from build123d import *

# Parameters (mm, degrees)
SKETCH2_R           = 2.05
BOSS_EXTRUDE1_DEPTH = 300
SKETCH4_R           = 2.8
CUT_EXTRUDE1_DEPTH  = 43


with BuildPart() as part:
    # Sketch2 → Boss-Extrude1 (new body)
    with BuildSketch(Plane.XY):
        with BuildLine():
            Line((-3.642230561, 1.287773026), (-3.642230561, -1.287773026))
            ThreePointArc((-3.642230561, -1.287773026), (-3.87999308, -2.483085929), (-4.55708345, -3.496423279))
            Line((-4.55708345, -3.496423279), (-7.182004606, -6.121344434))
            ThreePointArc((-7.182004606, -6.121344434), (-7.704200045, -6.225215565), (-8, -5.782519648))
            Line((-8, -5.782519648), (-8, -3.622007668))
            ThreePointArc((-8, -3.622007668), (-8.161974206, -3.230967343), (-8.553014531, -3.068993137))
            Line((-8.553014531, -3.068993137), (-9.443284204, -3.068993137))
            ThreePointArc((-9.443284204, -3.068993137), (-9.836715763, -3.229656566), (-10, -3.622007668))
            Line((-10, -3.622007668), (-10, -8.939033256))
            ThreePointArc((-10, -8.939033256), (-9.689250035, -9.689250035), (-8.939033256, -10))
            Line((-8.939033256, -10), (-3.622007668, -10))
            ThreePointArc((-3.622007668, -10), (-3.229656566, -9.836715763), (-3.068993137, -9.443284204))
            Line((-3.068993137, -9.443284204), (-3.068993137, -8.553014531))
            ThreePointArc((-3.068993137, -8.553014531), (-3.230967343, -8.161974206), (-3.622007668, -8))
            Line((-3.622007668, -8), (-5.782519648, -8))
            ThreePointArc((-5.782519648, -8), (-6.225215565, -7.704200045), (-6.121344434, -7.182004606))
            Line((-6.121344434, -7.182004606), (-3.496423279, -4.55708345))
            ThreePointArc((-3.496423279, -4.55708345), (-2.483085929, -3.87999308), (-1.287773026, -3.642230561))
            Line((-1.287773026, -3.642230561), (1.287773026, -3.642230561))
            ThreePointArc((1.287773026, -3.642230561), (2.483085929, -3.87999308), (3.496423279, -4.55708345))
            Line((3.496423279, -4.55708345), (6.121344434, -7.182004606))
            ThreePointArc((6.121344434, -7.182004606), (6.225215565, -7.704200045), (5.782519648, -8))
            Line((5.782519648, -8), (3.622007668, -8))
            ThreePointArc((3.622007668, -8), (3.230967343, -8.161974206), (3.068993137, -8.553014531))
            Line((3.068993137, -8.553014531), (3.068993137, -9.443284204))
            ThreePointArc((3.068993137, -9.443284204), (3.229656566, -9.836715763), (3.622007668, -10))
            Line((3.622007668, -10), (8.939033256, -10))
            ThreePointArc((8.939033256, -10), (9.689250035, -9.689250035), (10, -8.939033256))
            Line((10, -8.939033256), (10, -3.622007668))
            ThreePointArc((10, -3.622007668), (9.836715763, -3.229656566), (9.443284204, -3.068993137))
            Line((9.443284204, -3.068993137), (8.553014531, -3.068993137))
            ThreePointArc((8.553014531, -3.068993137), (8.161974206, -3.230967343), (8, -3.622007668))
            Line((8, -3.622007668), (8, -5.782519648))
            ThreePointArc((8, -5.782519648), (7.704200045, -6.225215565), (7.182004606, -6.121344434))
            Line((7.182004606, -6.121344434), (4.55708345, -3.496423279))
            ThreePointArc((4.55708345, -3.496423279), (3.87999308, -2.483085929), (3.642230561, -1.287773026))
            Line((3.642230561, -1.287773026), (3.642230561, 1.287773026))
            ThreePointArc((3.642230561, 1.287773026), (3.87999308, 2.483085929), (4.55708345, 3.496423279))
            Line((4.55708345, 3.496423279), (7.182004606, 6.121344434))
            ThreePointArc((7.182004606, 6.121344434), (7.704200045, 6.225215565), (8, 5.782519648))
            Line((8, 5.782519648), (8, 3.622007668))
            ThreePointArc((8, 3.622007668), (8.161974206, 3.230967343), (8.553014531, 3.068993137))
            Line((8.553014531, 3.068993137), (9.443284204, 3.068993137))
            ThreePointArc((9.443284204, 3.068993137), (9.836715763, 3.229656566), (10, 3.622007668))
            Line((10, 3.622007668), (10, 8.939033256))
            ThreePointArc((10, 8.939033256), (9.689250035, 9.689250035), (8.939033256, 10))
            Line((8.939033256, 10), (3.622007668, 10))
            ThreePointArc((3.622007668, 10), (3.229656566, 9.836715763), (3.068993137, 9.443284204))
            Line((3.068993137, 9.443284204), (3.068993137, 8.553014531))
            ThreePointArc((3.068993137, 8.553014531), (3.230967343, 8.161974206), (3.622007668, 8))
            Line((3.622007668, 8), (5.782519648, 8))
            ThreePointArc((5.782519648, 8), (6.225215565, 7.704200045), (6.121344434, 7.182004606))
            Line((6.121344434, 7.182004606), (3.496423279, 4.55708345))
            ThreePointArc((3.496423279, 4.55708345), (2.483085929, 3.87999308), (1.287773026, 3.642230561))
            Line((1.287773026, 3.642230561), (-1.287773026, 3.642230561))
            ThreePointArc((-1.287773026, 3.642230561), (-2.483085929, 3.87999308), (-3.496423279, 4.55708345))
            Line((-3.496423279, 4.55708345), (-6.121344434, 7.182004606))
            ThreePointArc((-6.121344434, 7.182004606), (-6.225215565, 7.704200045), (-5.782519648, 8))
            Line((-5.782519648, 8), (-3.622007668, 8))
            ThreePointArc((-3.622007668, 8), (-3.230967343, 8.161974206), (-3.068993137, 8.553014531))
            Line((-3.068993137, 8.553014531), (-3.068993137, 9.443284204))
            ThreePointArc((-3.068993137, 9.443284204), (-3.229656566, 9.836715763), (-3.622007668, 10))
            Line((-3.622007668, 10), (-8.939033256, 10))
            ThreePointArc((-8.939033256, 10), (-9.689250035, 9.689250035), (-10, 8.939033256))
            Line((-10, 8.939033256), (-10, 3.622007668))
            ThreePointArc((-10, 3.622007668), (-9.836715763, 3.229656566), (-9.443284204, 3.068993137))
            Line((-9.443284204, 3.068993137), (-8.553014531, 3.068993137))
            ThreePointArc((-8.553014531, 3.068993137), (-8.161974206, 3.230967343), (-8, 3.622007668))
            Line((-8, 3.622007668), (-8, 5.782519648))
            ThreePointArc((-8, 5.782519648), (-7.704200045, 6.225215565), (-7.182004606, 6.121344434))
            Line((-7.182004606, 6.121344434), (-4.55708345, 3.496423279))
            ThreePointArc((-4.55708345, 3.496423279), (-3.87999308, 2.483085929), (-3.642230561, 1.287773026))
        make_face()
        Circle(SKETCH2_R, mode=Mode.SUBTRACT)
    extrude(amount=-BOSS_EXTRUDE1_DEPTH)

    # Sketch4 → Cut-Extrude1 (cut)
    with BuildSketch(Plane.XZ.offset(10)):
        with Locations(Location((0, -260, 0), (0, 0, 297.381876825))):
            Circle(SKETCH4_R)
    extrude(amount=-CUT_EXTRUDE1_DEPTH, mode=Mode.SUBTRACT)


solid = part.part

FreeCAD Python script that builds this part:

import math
import FreeCAD as App
import Part
import Sketcher
from FreeCAD import Vector

doc = App.newDocument("Part")
body = doc.addObject("PartDesign::Body", "Body")

sketch1 = body.newObject("Sketcher::SketchObject", "Sketch")
sketch1.AttachmentSupport = (doc.getObject("XY_Plane"), [""])
sketch1.MapMode = "FlatFace"
sketch1.addGeometry([
    Part.LineSegment(Vector(-3.642231, 1.287773, 0), Vector(-3.642231, -1.287773, 0)),
    Part.ArcOfCircle(Part.Circle(Vector(-6.765734, -1.287773, 0), Vector(0, 0, 1), 3.123503), math.radians(-45), math.radians(0)),
    Part.LineSegment(Vector(-4.557083, -3.496423, 0), Vector(-7.182005, -6.121344, 0)),
    Part.ArcOfCircle(Part.Circle(Vector(-7.520829, -5.78252, 0), Vector(0, 0, 1), 0.479171), math.radians(180), math.radians(315)),
    Part.LineSegment(Vector(-8, -5.78252, 0), Vector(-8, -3.622008, 0)),
    Part.ArcOfCircle(Part.Circle(Vector(-8.553015, -3.622008, 0), Vector(0, 0, 1), 0.553015), math.radians(0), math.radians(90)),
    Part.LineSegment(Vector(-8.553015, -3.068993, 0), Vector(-9.443284, -3.068993, 0)),
    Part.ArcOfCircle(Part.Circle(Vector(-9.446973, -3.622008, 0), Vector(0, 0, 1), 0.553027), math.radians(89.617806), math.radians(180)),
    Part.LineSegment(Vector(-10, -3.622008, 0), Vector(-10, -8.939033, 0)),
    Part.ArcOfCircle(Part.Circle(Vector(-8.939033, -8.939033, 0), Vector(0, 0, 1), 1.060967), math.radians(-180), math.radians(-90)),
    Part.LineSegment(Vector(-8.939033, -10, 0), Vector(-3.622008, -10, 0)),
    Part.ArcOfCircle(Part.Circle(Vector(-3.622008, -9.446973, 0), Vector(0, 0, 1), 0.553027), math.radians(-90), math.radians(0.382194)),
    Part.LineSegment(Vector(-3.068993, -9.443284, 0), Vector(-3.068993, -8.553015, 0)),
    Part.ArcOfCircle(Part.Circle(Vector(-3.622008, -8.553015, 0), Vector(0, 0, 1), 0.553015), math.radians(0), math.radians(90)),
    Part.LineSegment(Vector(-3.622008, -8, 0), Vector(-5.78252, -8, 0)),
    Part.ArcOfCircle(Part.Circle(Vector(-5.78252, -7.520829, 0), Vector(0, 0, 1), 0.479171), math.radians(135), math.radians(270)),
    Part.LineSegment(Vector(-6.121344, -7.182005, 0), Vector(-3.496423, -4.557083, 0)),
    Part.ArcOfCircle(Part.Circle(Vector(-1.287773, -6.765734, 0), Vector(0, 0, 1), 3.123503), math.radians(90), math.radians(135)),
    Part.LineSegment(Vector(-1.287773, -3.642231, 0), Vector(1.287773, -3.642231, 0)),
    Part.ArcOfCircle(Part.Circle(Vector(1.287773, -6.765734, 0), Vector(0, 0, 1), 3.123503), math.radians(45), math.radians(90)),
    Part.LineSegment(Vector(3.496423, -4.557083, 0), Vector(6.121344, -7.182005, 0)),
    Part.ArcOfCircle(Part.Circle(Vector(5.78252, -7.520829, 0), Vector(0, 0, 1), 0.479171), math.radians(-90), math.radians(45)),
    Part.LineSegment(Vector(5.78252, -8, 0), Vector(3.622008, -8, 0)),
    Part.ArcOfCircle(Part.Circle(Vector(3.622008, -8.553015, 0), Vector(0, 0, 1), 0.553015), math.radians(90), math.radians(180)),
    Part.LineSegment(Vector(3.068993, -8.553015, 0), Vector(3.068993, -9.443284, 0)),
    Part.ArcOfCircle(Part.Circle(Vector(3.622008, -9.446973, 0), Vector(0, 0, 1), 0.553027), math.radians(179.617806), math.radians(270)),
    Part.LineSegment(Vector(3.622008, -10, 0), Vector(8.939033, -10, 0)),
    Part.ArcOfCircle(Part.Circle(Vector(8.939033, -8.939033, 0), Vector(0, 0, 1), 1.060967), math.radians(-90), math.radians(0)),
    Part.LineSegment(Vector(10, -8.939033, 0), Vector(10, -3.622008, 0)),
    Part.ArcOfCircle(Part.Circle(Vector(9.446973, -3.622008, 0), Vector(0, 0, 1), 0.553027), math.radians(0), math.radians(90.382194)),
    Part.LineSegment(Vector(9.443284, -3.068993, 0), Vector(8.553015, -3.068993, 0)),
    Part.ArcOfCircle(Part.Circle(Vector(8.553015, -3.622008, 0), Vector(0, 0, 1), 0.553015), math.radians(90), math.radians(180)),
    Part.LineSegment(Vector(8, -3.622008, 0), Vector(8, -5.78252, 0)),
    Part.ArcOfCircle(Part.Circle(Vector(7.520829, -5.78252, 0), Vector(0, 0, 1), 0.479171), math.radians(-135), math.radians(0)),
    Part.LineSegment(Vector(7.182005, -6.121344, 0), Vector(4.557083, -3.496423, 0)),
    Part.ArcOfCircle(Part.Circle(Vector(6.765734, -1.287773, 0), Vector(0, 0, 1), 3.123503), math.radians(180), math.radians(225)),
    Part.LineSegment(Vector(3.642231, -1.287773, 0), Vector(3.642231, 1.287773, 0)),
    Part.ArcOfCircle(Part.Circle(Vector(6.765734, 1.287773, 0), Vector(0, 0, 1), 3.123503), math.radians(135), math.radians(180)),
    Part.LineSegment(Vector(4.557083, 3.496423, 0), Vector(7.182005, 6.121344, 0)),
    Part.ArcOfCircle(Part.Circle(Vector(7.520829, 5.78252, 0), Vector(0, 0, 1), 0.479171), math.radians(0), math.radians(135)),
    Part.LineSegment(Vector(8, 5.78252, 0), Vector(8, 3.622008, 0)),
    Part.ArcOfCircle(Part.Circle(Vector(8.553015, 3.622008, 0), Vector(0, 0, 1), 0.553015), math.radians(180), math.radians(270)),
    Part.LineSegment(Vector(8.553015, 3.068993, 0), Vector(9.443284, 3.068993, 0)),
    Part.ArcOfCircle(Part.Circle(Vector(9.446973, 3.622008, 0), Vector(0, 0, 1), 0.553027), math.radians(-90.382194), math.radians(0)),
    Part.LineSegment(Vector(10, 3.622008, 0), Vector(10, 8.939033, 0)),
    Part.ArcOfCircle(Part.Circle(Vector(8.939033, 8.939033, 0), Vector(0, 0, 1), 1.060967), math.radians(0), math.radians(90)),
    Part.LineSegment(Vector(8.939033, 10, 0), Vector(3.622008, 10, 0)),
    Part.ArcOfCircle(Part.Circle(Vector(3.622008, 9.446973, 0), Vector(0, 0, 1), 0.553027), math.radians(90), math.radians(180.382194)),
    Part.LineSegment(Vector(3.068993, 9.443284, 0), Vector(3.068993, 8.553015, 0)),
    Part.ArcOfCircle(Part.Circle(Vector(3.622008, 8.553015, 0), Vector(0, 0, 1), 0.553015), math.radians(180), math.radians(270)),
    Part.LineSegment(Vector(3.622008, 8, 0), Vector(5.78252, 8, 0)),
    Part.ArcOfCircle(Part.Circle(Vector(5.78252, 7.520829, 0), Vector(0, 0, 1), 0.479171), math.radians(-45), math.radians(90)),
    Part.LineSegment(Vector(6.121344, 7.182005, 0), Vector(3.496423, 4.557083, 0)),
    Part.ArcOfCircle(Part.Circle(Vector(1.287773, 6.765734, 0), Vector(0, 0, 1), 3.123503), math.radians(-90), math.radians(-45)),
    Part.LineSegment(Vector(1.287773, 3.642231, 0), Vector(-1.287773, 3.642231, 0)),
    Part.ArcOfCircle(Part.Circle(Vector(-1.287773, 6.765734, 0), Vector(0, 0, 1), 3.123503), math.radians(-135), math.radians(-90)),
    Part.LineSegment(Vector(-3.496423, 4.557083, 0), Vector(-6.121344, 7.182005, 0)),
    Part.ArcOfCircle(Part.Circle(Vector(-5.78252, 7.520829, 0), Vector(0, 0, 1), 0.479171), math.radians(90), math.radians(225)),
    Part.LineSegment(Vector(-5.78252, 8, 0), Vector(-3.622008, 8, 0)),
    Part.ArcOfCircle(Part.Circle(Vector(-3.622008, 8.553015, 0), Vector(0, 0, 1), 0.553015), math.radians(-90), math.radians(0)),
    Part.LineSegment(Vector(-3.068993, 8.553015, 0), Vector(-3.068993, 9.443284, 0)),
    Part.ArcOfCircle(Part.Circle(Vector(-3.622008, 9.446973, 0), Vector(0, 0, 1), 0.553027), math.radians(-0.382194), math.radians(90)),
    Part.LineSegment(Vector(-3.622008, 10, 0), Vector(-8.939033, 10, 0)),
    Part.ArcOfCircle(Part.Circle(Vector(-8.939033, 8.939033, 0), Vector(0, 0, 1), 1.060967), math.radians(90), math.radians(180)),
    Part.LineSegment(Vector(-10, 8.939033, 0), Vector(-10, 3.622008, 0)),
    Part.ArcOfCircle(Part.Circle(Vector(-9.446973, 3.622008, 0), Vector(0, 0, 1), 0.553027), math.radians(180), math.radians(270.382194)),
    Part.LineSegment(Vector(-9.443284, 3.068993, 0), Vector(-8.553015, 3.068993, 0)),
    Part.ArcOfCircle(Part.Circle(Vector(-8.553015, 3.622008, 0), Vector(0, 0, 1), 0.553015), math.radians(-90), math.radians(0)),
    Part.LineSegment(Vector(-8, 3.622008, 0), Vector(-8, 5.78252, 0)),
    Part.ArcOfCircle(Part.Circle(Vector(-7.520829, 5.78252, 0), Vector(0, 0, 1), 0.479171), math.radians(45), math.radians(180)),
    Part.LineSegment(Vector(-7.182005, 6.121344, 0), Vector(-4.557083, 3.496423, 0)),
    Part.ArcOfCircle(Part.Circle(Vector(-6.765734, 1.287773, 0), Vector(0, 0, 1), 3.123503), math.radians(0), math.radians(45)),
    Part.Circle(Vector(0, 0, 0), Vector(0, 0, 1), 2.05),
], False)
sketch1.addConstraint([
    Sketcher.Constraint("Tangent", 0, 2, 1, 2),
    Sketcher.Constraint("Tangent", 1, 1, 2, 1),
    Sketcher.Constraint("Tangent", 2, 2, 3, 2),
    Sketcher.Constraint("Tangent", 3, 1, 4, 1),
    Sketcher.Constraint("Tangent", 4, 2, 5, 1),
    Sketcher.Constraint("Tangent", 5, 2, 6, 1),
    Sketcher.Constraint("Coincident", 6, 2, 7, 1),
    Sketcher.Constraint("Tangent", 7, 2, 8, 1),
    Sketcher.Constraint("Tangent", 8, 2, 9, 1),
    Sketcher.Constraint("Tangent", 9, 2, 10, 1),
    Sketcher.Constraint("Tangent", 10, 2, 11, 1),
    Sketcher.Constraint("Coincident", 11, 2, 12, 1),
    Sketcher.Constraint("Tangent", 12, 2, 13, 1),
    Sketcher.Constraint("Tangent", 13, 2, 14, 1),
    Sketcher.Constraint("Tangent", 14, 2, 15, 2),
    Sketcher.Constraint("Tangent", 15, 1, 16, 1),
    Sketcher.Constraint("Tangent", 16, 2, 17, 2),
    Sketcher.Constraint("Tangent", 17, 1, 18, 1),
    Sketcher.Constraint("Tangent", 18, 2, 19, 2),
    Sketcher.Constraint("Tangent", 19, 1, 20, 1),
    Sketcher.Constraint("Tangent", 20, 2, 21, 2),
    Sketcher.Constraint("Tangent", 21, 1, 22, 1),
    Sketcher.Constraint("Tangent", 22, 2, 23, 1),
    Sketcher.Constraint("Tangent", 23, 2, 24, 1),
    Sketcher.Constraint("Coincident", 24, 2, 25, 1),
    Sketcher.Constraint("Tangent", 25, 2, 26, 1),
    Sketcher.Constraint("Tangent", 26, 2, 27, 1),
    Sketcher.Constraint("Tangent", 27, 2, 28, 1),
    Sketcher.Constraint("Tangent", 28, 2, 29, 1),
    Sketcher.Constraint("Coincident", 29, 2, 30, 1),
    Sketcher.Constraint("Tangent", 30, 2, 31, 1),
    Sketcher.Constraint("Tangent", 31, 2, 32, 1),
    Sketcher.Constraint("Tangent", 32, 2, 33, 2),
    Sketcher.Constraint("Tangent", 33, 1, 34, 1),
    Sketcher.Constraint("Tangent", 34, 2, 35, 2),
    Sketcher.Constraint("Tangent", 35, 1, 36, 1),
    Sketcher.Constraint("Tangent", 36, 2, 37, 2),
    Sketcher.Constraint("Tangent", 37, 1, 38, 1),
    Sketcher.Constraint("Tangent", 38, 2, 39, 2),
    Sketcher.Constraint("Tangent", 39, 1, 40, 1),
    Sketcher.Constraint("Tangent", 40, 2, 41, 1),
    Sketcher.Constraint("Tangent", 41, 2, 42, 1),
    Sketcher.Constraint("Coincident", 42, 2, 43, 1),
    Sketcher.Constraint("Tangent", 43, 2, 44, 1),
    Sketcher.Constraint("Tangent", 44, 2, 45, 1),
    Sketcher.Constraint("Tangent", 45, 2, 46, 1),
    Sketcher.Constraint("Tangent", 46, 2, 47, 1),
    Sketcher.Constraint("Coincident", 47, 2, 48, 1),
    Sketcher.Constraint("Tangent", 48, 2, 49, 1),
    Sketcher.Constraint("Tangent", 49, 2, 50, 1),
    Sketcher.Constraint("Tangent", 50, 2, 51, 2),
    Sketcher.Constraint("Tangent", 51, 1, 52, 1),
    Sketcher.Constraint("Tangent", 52, 2, 53, 2),
    Sketcher.Constraint("Tangent", 53, 1, 54, 1),
    Sketcher.Constraint("Tangent", 54, 2, 55, 2),
    Sketcher.Constraint("Tangent", 55, 1, 56, 1),
    Sketcher.Constraint("Tangent", 56, 2, 57, 2),
    Sketcher.Constraint("Tangent", 57, 1, 58, 1),
    Sketcher.Constraint("Tangent", 58, 2, 59, 1),
    Sketcher.Constraint("Tangent", 59, 2, 60, 1),
    Sketcher.Constraint("Coincident", 60, 2, 61, 1),
    Sketcher.Constraint("Tangent", 61, 2, 62, 1),
    Sketcher.Constraint("Tangent", 62, 2, 63, 1),
    Sketcher.Constraint("Tangent", 63, 2, 64, 1),
    Sketcher.Constraint("Tangent", 64, 2, 65, 1),
    Sketcher.Constraint("Coincident", 65, 2, 66, 1),
    Sketcher.Constraint("Tangent", 66, 2, 67, 1),
    Sketcher.Constraint("Tangent", 67, 2, 68, 1),
    Sketcher.Constraint("Tangent", 68, 2, 69, 2),
    Sketcher.Constraint("Tangent", 69, 1, 70, 1),
    Sketcher.Constraint("Tangent", 70, 2, 71, 2),
    Sketcher.Constraint("Tangent", 71, 1, 0, 1),
    Sketcher.Constraint("Vertical", 0),
    Sketcher.Constraint("Vertical", 4),
    Sketcher.Constraint("Horizontal", 6),
    Sketcher.Constraint("Vertical", 8),
    Sketcher.Constraint("Horizontal", 10),
    Sketcher.Constraint("Vertical", 12),
    Sketcher.Constraint("Horizontal", 14),
    Sketcher.Constraint("Horizontal", 18),
    Sketcher.Constraint("Horizontal", 22),
    Sketcher.Constraint("Vertical", 24),
    Sketcher.Constraint("Horizontal", 26),
    Sketcher.Constraint("Vertical", 28),
    Sketcher.Constraint("Horizontal", 30),
    Sketcher.Constraint("Vertical", 32),
    Sketcher.Constraint("Vertical", 36),
    Sketcher.Constraint("Vertical", 40),
    Sketcher.Constraint("Horizontal", 42),
    Sketcher.Constraint("Vertical", 44),
    Sketcher.Constraint("Horizontal", 46),
    Sketcher.Constraint("Vertical", 48),
    Sketcher.Constraint("Horizontal", 50),
    Sketcher.Constraint("Horizontal", 54),
    Sketcher.Constraint("Horizontal", 58),
    Sketcher.Constraint("Vertical", 60),
    Sketcher.Constraint("Horizontal", 62),
    Sketcher.Constraint("Vertical", 64),
    Sketcher.Constraint("Horizontal", 66),
    Sketcher.Constraint("Vertical", 68),
    Sketcher.Constraint("Coincident", 72, 3, -1, 1),
    Sketcher.Constraint("Equal", 7, 11),
    Sketcher.Constraint("Equal", 5, 13),
    Sketcher.Constraint("Equal", 3, 15),
    Sketcher.Constraint("Equal", 1, 17),
    Sketcher.Constraint("Equal", 17, 19),
    Sketcher.Constraint("Equal", 15, 21),
    Sketcher.Constraint("Equal", 13, 23),
    Sketcher.Constraint("Equal", 11, 25),
    Sketcher.Constraint("Equal", 9, 27),
    Sketcher.Constraint("Equal", 25, 29),
    Sketcher.Constraint("Equal", 23, 31),
    Sketcher.Constraint("Equal", 21, 33),
    Sketcher.Constraint("Equal", 19, 35),
    Sketcher.Constraint("Equal", 35, 37),
    Sketcher.Constraint("Equal", 33, 39),
    Sketcher.Constraint("Equal", 31, 41),
    Sketcher.Constraint("Equal", 29, 43),
    Sketcher.Constraint("Equal", 27, 45),
    Sketcher.Constraint("Equal", 43, 47),
    Sketcher.Constraint("Equal", 41, 49),
    Sketcher.Constraint("Equal", 39, 51),
    Sketcher.Constraint("Equal", 37, 53),
    Sketcher.Constraint("Equal", 53, 55),
    Sketcher.Constraint("Equal", 51, 57),
    Sketcher.Constraint("Equal", 49, 59),
    Sketcher.Constraint("Equal", 47, 61),
    Sketcher.Constraint("Equal", 45, 63),
    Sketcher.Constraint("Equal", 61, 65),
    Sketcher.Constraint("Equal", 59, 67),
    Sketcher.Constraint("Equal", 57, 69),
    Sketcher.Constraint("Equal", 55, 71),
    Sketcher.Constraint("Symmetric", 1, 3, 37, 3, -1, 1),
    Sketcher.Constraint("Symmetric", 3, 3, 39, 3, -1, 1),
    Sketcher.Constraint("Symmetric", 7, 3, 43, 3, -1, 1),
    Sketcher.Constraint("Symmetric", 11, 3, 47, 3, -1, 1),
    Sketcher.Constraint("Symmetric", 13, 3, 49, 3, -1, 1),
    Sketcher.Constraint("Symmetric", 17, 3, 53, 3, -1, 1),
    Sketcher.Constraint("Symmetric", 21, 3, 57, 3, -1, 1),
    Sketcher.Constraint("Symmetric", 25, 3, 61, 3, -1, 1),
    Sketcher.Constraint("Symmetric", 29, 3, 65, 3, -1, 1),
    Sketcher.Constraint("Symmetric", 31, 3, 67, 3, -1, 1),
    Sketcher.Constraint("Symmetric", 33, 1, 69, 1, -1, 1),
    Sketcher.Constraint("Symmetric", 15, 3, 21, 3, -2),
    Sketcher.Constraint("Symmetric", 11, 3, 25, 3, -2),
    Sketcher.Constraint("Symmetric", 7, 3, 29, 3, -2),
    Sketcher.Constraint("Symmetric", 5, 3, 31, 3, -2),
    Sketcher.Constraint("Symmetric", 2, 2, 33, 1, -2),
    Sketcher.Constraint("Symmetric", 52, 2, 55, 1, -2),
    Sketcher.Constraint("Parallel", 2, 16),
    Sketcher.Constraint("Perpendicular", 16, 20),
    Sketcher.Constraint("Parallel", 20, 34),
    Sketcher.Constraint("Horizontal", 5, 3, 7, 3),
    Sketcher.Constraint("Horizontal", 41, 3, 43, 3),
    Sketcher.Constraint("Horizontal", 11, 2, 24, 2),
    Sketcher.Constraint("Horizontal", 47, 2, 60, 2),
    Sketcher.Constraint("Equal", 54, 0),
    Sketcher.Constraint("Equal", 58, 4),
    Sketcher.Constraint("Equal", 62, 8),
    Sketcher.Constraint("Equal", 66, 12),
    Sketcher.Constraint("Equal", 2, 16),
    Sketcher.Constraint("Diameter", 72, 4.1),
    Sketcher.Constraint("DistanceX", 3, 1, -1, 1, 8.0),
    Sketcher.Constraint("DistanceX", 7, 2, -1, 1, 10.0),
    Sketcher.Constraint("DistanceY", 13, 2, -1, 1, 8.0),
    Sketcher.Constraint("Radius", 3, 0.479171),
    Sketcher.Constraint("Radius", 1, 3.123503),
    Sketcher.Constraint("Radius", 5, 0.553015),
    Sketcher.Constraint("Radius", 9, 1.060967),
    Sketcher.Constraint("Distance", 2, 3.712199),
    Sketcher.Constraint("DistanceX", 6, 2, 6, 1, 0.89027),
    Sketcher.Constraint("DistanceX", 14, 2, 14, 1, 2.160512),
    Sketcher.Constraint("DistanceX", 10, 1, 10, 2, 5.317026),
])
pad1 = body.newObject("PartDesign::Pad", "Pad")
pad1.Profile = sketch1
pad1.Length = 300
pad1.Reversed = True

sketch2 = body.newObject("Sketcher::SketchObject", "Sketch001")
sketch2.AttachmentSupport = (doc.getObject("XZ_Plane"), [""])
sketch2.MapMode = "FlatFace"
sketch2.AttachmentOffset = App.Placement(Vector(0, 0, 10), App.Rotation())
sketch2.addGeometry(Part.Circle(Vector(0, -260, 0), Vector(0, 0, 1), 2.8), False)
sketch2.addConstraint([
    Sketcher.Constraint("PointOnObject", 0, 3, -2),
    Sketcher.Constraint("Diameter", 0, 5.6),
    Sketcher.Constraint("DistanceY", 0, 3, -1, 1, 260.0),
])
pocket1 = body.newObject("PartDesign::Pocket", "Pocket")
pocket1.Profile = sketch2
pocket1.Length = 43

doc.recompute()
